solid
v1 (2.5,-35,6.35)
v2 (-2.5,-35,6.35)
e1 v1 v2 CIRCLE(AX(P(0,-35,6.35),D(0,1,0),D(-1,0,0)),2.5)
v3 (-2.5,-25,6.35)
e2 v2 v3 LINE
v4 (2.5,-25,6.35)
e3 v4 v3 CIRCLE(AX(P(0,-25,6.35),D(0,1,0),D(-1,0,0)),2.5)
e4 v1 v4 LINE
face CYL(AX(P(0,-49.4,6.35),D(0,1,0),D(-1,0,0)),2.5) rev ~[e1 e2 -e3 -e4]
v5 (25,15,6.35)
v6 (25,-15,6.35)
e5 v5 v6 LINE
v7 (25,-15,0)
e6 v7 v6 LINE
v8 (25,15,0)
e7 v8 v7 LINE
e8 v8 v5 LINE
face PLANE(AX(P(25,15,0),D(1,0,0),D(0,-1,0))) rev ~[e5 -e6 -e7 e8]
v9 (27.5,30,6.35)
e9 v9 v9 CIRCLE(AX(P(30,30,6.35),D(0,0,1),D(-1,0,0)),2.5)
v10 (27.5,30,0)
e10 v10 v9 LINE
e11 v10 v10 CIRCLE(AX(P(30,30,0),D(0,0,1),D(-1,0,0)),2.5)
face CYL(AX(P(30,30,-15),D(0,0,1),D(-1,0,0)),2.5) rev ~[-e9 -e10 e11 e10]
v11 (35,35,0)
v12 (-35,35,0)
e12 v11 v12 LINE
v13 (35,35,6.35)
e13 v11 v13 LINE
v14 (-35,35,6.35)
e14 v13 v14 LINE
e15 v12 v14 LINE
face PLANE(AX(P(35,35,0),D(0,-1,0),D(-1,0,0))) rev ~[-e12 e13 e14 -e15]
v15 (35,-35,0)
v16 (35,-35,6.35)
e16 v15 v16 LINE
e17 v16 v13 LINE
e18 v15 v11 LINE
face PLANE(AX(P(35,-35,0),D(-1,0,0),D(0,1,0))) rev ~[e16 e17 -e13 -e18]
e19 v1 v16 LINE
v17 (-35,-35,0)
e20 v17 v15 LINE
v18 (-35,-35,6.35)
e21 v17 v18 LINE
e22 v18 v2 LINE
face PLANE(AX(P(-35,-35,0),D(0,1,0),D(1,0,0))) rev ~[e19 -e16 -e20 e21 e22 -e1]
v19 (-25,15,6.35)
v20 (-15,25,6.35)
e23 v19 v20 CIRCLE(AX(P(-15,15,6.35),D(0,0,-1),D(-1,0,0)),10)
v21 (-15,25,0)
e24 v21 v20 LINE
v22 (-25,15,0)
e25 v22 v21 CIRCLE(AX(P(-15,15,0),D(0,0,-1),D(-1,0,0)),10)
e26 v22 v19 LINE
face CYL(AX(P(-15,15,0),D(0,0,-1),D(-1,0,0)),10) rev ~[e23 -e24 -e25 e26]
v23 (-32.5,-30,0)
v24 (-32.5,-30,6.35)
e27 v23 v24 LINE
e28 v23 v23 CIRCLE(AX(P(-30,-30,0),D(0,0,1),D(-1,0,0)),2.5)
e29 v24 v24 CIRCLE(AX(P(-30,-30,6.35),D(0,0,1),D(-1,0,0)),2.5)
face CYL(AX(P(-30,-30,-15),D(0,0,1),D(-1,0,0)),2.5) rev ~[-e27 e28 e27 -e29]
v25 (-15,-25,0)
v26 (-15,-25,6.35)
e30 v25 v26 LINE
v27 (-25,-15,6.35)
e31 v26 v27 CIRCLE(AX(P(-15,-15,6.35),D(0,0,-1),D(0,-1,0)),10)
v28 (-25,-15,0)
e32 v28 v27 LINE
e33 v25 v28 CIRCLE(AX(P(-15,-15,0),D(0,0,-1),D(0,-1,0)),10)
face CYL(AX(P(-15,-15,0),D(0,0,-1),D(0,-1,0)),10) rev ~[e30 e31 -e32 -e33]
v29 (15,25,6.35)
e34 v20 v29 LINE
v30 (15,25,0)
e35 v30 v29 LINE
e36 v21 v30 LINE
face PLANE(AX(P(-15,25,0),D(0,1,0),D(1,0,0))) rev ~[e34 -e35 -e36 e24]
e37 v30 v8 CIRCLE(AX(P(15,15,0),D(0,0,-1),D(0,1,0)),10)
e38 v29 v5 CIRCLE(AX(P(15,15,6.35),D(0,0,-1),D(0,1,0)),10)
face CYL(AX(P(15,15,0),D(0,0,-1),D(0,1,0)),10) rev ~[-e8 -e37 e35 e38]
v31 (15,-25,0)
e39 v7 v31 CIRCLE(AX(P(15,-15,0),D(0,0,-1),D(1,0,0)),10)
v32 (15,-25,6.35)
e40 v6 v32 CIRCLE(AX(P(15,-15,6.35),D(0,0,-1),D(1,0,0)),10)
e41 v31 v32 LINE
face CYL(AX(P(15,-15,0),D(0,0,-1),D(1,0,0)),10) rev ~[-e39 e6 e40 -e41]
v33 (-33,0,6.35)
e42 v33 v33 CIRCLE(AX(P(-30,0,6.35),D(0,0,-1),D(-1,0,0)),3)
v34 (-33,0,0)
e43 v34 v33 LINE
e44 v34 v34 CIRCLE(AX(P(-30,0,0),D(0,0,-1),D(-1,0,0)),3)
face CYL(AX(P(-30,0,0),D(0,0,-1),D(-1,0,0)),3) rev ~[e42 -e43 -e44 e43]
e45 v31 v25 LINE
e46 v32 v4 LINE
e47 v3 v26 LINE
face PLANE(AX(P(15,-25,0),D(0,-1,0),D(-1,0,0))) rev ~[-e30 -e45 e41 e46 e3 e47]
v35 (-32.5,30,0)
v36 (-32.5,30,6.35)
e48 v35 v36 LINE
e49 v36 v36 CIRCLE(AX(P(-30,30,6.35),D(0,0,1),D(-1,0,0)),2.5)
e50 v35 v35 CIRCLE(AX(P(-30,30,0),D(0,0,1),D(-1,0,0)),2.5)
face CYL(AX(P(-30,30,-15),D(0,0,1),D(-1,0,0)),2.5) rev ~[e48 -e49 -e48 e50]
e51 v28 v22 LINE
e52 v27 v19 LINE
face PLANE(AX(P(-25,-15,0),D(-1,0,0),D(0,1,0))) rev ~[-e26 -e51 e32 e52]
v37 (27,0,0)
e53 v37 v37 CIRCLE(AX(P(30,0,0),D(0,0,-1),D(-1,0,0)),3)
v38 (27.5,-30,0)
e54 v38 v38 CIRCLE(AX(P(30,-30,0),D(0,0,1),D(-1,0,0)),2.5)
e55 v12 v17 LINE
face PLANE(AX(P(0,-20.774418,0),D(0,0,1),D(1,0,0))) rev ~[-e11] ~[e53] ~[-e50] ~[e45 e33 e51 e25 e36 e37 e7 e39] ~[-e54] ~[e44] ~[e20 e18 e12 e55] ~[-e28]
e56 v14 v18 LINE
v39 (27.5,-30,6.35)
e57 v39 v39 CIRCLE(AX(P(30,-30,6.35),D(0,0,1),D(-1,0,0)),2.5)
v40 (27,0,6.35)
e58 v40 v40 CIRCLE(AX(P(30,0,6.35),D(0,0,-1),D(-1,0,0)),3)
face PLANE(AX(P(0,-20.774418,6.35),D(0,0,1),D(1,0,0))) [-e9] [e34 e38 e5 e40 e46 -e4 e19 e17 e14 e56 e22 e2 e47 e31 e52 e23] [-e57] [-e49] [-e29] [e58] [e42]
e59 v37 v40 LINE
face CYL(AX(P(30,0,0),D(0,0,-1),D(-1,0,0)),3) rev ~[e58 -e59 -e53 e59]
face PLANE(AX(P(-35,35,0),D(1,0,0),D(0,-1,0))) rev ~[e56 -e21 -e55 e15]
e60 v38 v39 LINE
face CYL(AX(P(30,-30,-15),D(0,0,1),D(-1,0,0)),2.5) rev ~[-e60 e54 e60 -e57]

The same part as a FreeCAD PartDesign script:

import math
import FreeCAD as App
import Part
import Sketcher
from FreeCAD import Vector
Q = App.Units.Quantity

doc = App.newDocument("Part")
body = doc.addObject("PartDesign::Body", "Body")

# Sketch on XY plane
sketch1 = body.newObject("Sketcher::SketchObject", "Sketch")
sketch1.AttachmentSupport = (doc.getObject("XY_Plane"), [""])
sketch1.MapMode = "FlatFace"
sketch1.addGeometry(Part.LineSegment(Vector(-35, -35, 0), Vector(35, -35, 0)), False)
sketch1.addGeometry(Part.LineSegment(Vector(35, -35, 0), Vector(35, 35, 0)), False)
sketch1.addGeometry(Part.LineSegment(Vector(35, 35, 0), Vector(-35, 35, 0)), False)
sketch1.addGeometry(Part.LineSegment(Vector(-35, 35, 0), Vector(-35, -35, 0)), False)
sketch1.addGeometry(Part.Circle(Vector(30, 0, 0), Vector(0, 0, 1), 3), False)
sketch1.addGeometry(Part.ArcOfCircle(Part.Circle(Vector(15, -15, 0), Vector(0, 0, 1), 10), math.radians(-90), math.radians(0)), False)
sketch1.addGeometry(Part.LineSegment(Vector(15, -25, 0), Vector(-15, -25, 0)), False)
sketch1.addGeometry(Part.ArcOfCircle(Part.Circle(Vector(-15, -15, 0), Vector(0, 0, 1), 10), math.radians(180), math.radians(270)), False)
sketch1.addGeometry(Part.LineSegment(Vector(-25, -15, 0), Vector(-25, 15, 0)), False)
sketch1.addGeometry(Part.ArcOfCircle(Part.Circle(Vector(-15, 15, 0), Vector(0, 0, 1), 10), math.radians(90), math.radians(180)), False)
sketch1.addGeometry(Part.LineSegment(Vector(-15, 25, 0), Vector(15, 25, 0)), False)
sketch1.addGeometry(Part.ArcOfCircle(Part.Circle(Vector(15, 15, 0), Vector(0, 0, 1), 10), math.radians(0), math.radians(90)), False)
sketch1.addGeometry(Part.LineSegment(Vector(25, 15, 0), Vector(25, -15, 0)), False)
sketch1.addGeometry(Part.Circle(Vector(-30, 0, 0), Vector(0, 0, 1), 3), False)
sketch1.addConstraint(Sketcher.Constraint("Coincident", 0, 2, 1, 1))
sketch1.addConstraint(Sketcher.Constraint("Coincident", 1, 2, 2, 1))
sketch1.addConstraint(Sketcher.Constraint("Coincident", 2, 2, 3, 1))
sketch1.addConstraint(Sketcher.Constraint("Coincident", 3, 2, 0, 1))
sketch1.addConstraint(Sketcher.Constraint("Tangent", 5, 1, 6, 1))
sketch1.addConstraint(Sketcher.Constraint("Tangent", 6, 2, 7, 2))
sketch1.addConstraint(Sketcher.Constraint("Tangent", 7, 1, 8, 1))
sketch1.addConstraint(Sketcher.Constraint("Tangent", 8, 2, 9, 2))
sketch1.addConstraint(Sketcher.Constraint("Tangent", 9, 1, 10, 1))
sketch1.addConstraint(Sketcher.Constraint("Tangent", 10, 2, 11, 2))
sketch1.addConstraint(Sketcher.Constraint("Tangent", 11, 1, 12, 1))
sketch1.addConstraint(Sketcher.Constraint("Tangent", 12, 2, 5, 2))
sketch1.addConstraint(Sketcher.Constraint("Horizontal", 0))
sketch1.addConstraint(Sketcher.Constraint("Vertical", 1))
sketch1.addConstraint(Sketcher.Constraint("Horizontal", 2))
sketch1.addConstraint(Sketcher.Constraint("Vertical", 3))
sketch1.addConstraint(Sketcher.Constraint("Horizontal", 6))
sketch1.addConstraint(Sketcher.Constraint("Vertical", 8))
sketch1.addConstraint(Sketcher.Constraint("Horizontal", 10))
sketch1.addConstraint(Sketcher.Constraint("Vertical", 12))
sketch1.addConstraint(Sketcher.Constraint("Equal", 5, 7))
sketch1.addConstraint(Sketcher.Constraint("Equal", 7, 9))
sketch1.addConstraint(Sketcher.Constraint("Equal", 9, 11))
sketch1.addConstraint(Sketcher.Constraint("Equal", 4, 13))
sketch1.addConstraint(Sketcher.Constraint("Symmetric", 5, 3, 9, 3, -1, 1))
sketch1.addConstraint(Sketcher.Constraint("Symmetric", 4, 3, 13, 3, -1, 1))
sketch1.addConstraint(Sketcher.Constraint("Symmetric", 0, 2, 2, 2, -1, 1))
sketch1.addConstraint(Sketcher.Constraint("PointOnObject", 4, 3, -1))
sketch1.addConstraint(Sketcher.Constraint("Equal", 2, 1))
sketch1.addConstraint(Sketcher.Constraint("Equal", 10, 8))
sketch1.addConstraint(Sketcher.Constraint("Diameter", 4, Q("6 mm")))
sketch1.addConstraint(Sketcher.Constraint("Radius", 5, Q("10 mm")))
sketch1.addConstraint(Sketcher.Constraint("DistanceX", 0, 1, 0, 2, Q("70 mm")))
sketch1.addConstraint(Sketcher.Constraint("DistanceX", 6, 2, 6, 1, Q("30 mm")))
sketch1.addConstraint(Sketcher.Constraint("DistanceX", -1, 1, 4, 3, Q("30 mm")))
pad1 = body.newObject("PartDesign::Pad", "Pad")
pad1.Profile = sketch1
pad1.Length = 6.35

# Sketch on XZ plane
sketch2 = body.newObject("Sketcher::SketchObject", "Sketch001")
sketch2.AttachmentSupport = (doc.getObject("XZ_Plane"), [""])
sketch2.MapMode = "FlatFace"
sketch2.AttachmentOffset = App.Placement(Vector(0, 0, 35), App.Rotation())
sketch2.addGeometry(Part.Circle(Vector(0, 6.3, 0), Vector(0, 0, 1), 2.5), False)
sketch2.addConstraint(Sketcher.Constraint("PointOnObject", 0, 3, -2))
sketch2.addConstraint(Sketcher.Constraint("Diameter", 0, Q("5 mm")))
sketch2.addConstraint(Sketcher.Constraint("DistanceY", -1, 1, 0, 3, Q("6.35 mm")))
doc.recompute()
hole = body.newObject("PartDesign::Hole", "Hole")
hole.Profile = sketch2
hole.ThreadType = "None"
hole.Diameter = 5
hole.DepthType = "Dimension"
hole.Depth = 14.4
hole.DrillPoint = "Angled"
hole.DrillPointAngle = 118

# Sketch on XY plane
sketch3 = body.newObject("Sketcher::SketchObject", "Sketch002")
sketch3.AttachmentSupport = (doc.getObject("XY_Plane"), [""])
sketch3.MapMode = "FlatFace"
sketch3.addGeometry(Part.Circle(Vector(-30, -30, 0), Vector(0, 0, 1), 2.5), False)
sketch3.addGeometry(Part.Circle(Vector(30, -30, 0), Vector(0, 0, 1), 2.5), False)
sketch3.addGeometry(Part.Circle(Vector(30, 30, 0), Vector(0, 0, 1), 2.5), False)
sketch3.addGeometry(Part.Circle(Vector(-30, 30, 0), Vector(0, 0, 1), 2.5), False)
sketch3.addConstraint(Sketcher.Constraint("Equal", 0, 1))
sketch3.addConstraint(Sketcher.Constraint("Equal", 1, 2))
sketch3.addConstraint(Sketcher.Constraint("Equal", 2, 3))
sketch3.addConstraint(Sketcher.Constraint("Symmetric", 0, 3, 2, 3, -1, 1))
sketch3.addConstraint(Sketcher.Constraint("Symmetric", 1, 3, 3, 3, -1, 1))
sketch3.addConstraint(Sketcher.Constraint("Symmetric", 0, 3, 1, 3, -2))
sketch3.addConstraint(Sketcher.Constraint("Diameter", 0, Q("5 mm")))
sketch3.addConstraint(Sketcher.Constraint("DistanceX", 0, 3, -1, 1, Q("30 mm")))
sketch3.addConstraint(Sketcher.Constraint("DistanceY", 0, 3, -1, 1, Q("30 mm")))
doc.recompute()
hole2 = body.newObject("PartDesign::Hole", "Hole001")
hole2.Profile = sketch3
hole2.ThreadType = "None"
hole2.Diameter = 5
hole2.DepthType = "Dimension"
hole2.Depth = 15
hole2.DrillPoint = "Angled"
hole2.DrillPointAngle = 118
hole2.Reversed = True

doc.recompute()
